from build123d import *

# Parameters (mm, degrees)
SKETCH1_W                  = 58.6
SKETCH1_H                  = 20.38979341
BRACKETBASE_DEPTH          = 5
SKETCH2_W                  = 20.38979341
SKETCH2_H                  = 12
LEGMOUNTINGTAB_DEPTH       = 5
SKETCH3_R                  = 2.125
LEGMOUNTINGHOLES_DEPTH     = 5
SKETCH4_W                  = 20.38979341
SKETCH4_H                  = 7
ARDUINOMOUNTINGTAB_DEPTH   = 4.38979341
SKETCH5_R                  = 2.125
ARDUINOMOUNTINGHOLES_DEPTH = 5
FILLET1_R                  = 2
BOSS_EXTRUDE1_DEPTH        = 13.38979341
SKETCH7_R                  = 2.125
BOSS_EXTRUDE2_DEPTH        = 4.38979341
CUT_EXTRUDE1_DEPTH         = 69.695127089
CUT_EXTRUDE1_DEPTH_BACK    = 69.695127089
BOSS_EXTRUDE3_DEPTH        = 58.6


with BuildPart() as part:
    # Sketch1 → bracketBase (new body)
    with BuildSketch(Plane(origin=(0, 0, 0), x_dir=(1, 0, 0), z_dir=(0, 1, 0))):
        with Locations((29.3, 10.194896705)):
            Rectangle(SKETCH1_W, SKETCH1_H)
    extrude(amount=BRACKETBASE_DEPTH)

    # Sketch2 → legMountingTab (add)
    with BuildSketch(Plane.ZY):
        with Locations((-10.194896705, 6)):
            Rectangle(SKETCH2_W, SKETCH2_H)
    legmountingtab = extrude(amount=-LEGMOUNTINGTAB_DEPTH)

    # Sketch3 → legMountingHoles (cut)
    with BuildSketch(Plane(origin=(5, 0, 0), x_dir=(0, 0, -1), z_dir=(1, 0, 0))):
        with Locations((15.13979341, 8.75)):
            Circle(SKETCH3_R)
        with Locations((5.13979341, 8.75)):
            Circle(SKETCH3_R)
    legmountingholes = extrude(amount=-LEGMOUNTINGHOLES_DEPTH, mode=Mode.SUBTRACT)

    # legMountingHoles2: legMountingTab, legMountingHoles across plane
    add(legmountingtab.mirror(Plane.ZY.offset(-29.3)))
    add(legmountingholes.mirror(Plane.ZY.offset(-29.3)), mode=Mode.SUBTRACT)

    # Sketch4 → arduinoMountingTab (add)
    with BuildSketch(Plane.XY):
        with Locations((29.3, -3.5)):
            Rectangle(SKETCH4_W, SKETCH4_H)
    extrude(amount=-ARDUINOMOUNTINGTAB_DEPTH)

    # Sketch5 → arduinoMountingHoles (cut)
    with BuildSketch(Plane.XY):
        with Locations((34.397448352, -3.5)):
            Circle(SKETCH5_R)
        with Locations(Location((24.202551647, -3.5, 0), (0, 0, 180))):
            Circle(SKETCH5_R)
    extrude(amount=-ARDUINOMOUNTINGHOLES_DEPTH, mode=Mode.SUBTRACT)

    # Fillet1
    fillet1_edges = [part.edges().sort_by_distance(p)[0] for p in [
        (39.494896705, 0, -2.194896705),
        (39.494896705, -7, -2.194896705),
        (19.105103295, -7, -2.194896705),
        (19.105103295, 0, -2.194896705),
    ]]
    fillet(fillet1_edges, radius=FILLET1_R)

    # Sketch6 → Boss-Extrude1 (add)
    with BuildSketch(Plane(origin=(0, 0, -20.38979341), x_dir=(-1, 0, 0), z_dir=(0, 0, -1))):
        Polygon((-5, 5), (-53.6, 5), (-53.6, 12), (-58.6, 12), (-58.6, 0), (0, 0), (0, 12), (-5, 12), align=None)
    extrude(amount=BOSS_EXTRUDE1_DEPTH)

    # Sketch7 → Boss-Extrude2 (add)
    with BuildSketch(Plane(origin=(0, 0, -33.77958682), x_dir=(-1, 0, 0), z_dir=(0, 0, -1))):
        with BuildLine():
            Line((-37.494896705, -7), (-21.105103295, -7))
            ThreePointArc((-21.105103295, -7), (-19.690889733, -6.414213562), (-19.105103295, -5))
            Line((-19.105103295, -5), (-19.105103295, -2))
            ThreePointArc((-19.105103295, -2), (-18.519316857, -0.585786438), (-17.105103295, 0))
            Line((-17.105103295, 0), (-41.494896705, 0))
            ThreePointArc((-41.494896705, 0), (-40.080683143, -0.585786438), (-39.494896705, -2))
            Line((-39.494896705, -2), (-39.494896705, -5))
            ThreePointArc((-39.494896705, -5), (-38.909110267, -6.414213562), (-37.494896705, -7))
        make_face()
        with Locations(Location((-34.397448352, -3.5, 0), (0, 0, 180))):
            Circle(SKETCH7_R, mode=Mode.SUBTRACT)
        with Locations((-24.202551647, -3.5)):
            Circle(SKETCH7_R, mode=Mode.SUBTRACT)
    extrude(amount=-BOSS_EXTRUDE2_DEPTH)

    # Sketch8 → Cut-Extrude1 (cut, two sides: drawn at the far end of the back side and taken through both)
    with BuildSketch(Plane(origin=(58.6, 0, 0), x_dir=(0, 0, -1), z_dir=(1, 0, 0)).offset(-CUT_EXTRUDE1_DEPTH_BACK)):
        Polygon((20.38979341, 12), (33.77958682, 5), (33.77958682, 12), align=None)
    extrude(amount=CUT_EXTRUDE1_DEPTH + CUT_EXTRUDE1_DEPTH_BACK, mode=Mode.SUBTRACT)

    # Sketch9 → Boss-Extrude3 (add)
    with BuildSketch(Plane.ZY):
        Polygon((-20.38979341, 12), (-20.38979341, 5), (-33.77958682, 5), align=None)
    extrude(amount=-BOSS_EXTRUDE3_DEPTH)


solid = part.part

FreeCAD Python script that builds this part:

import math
import FreeCAD as App
import Part
import Sketcher
Q = App.Units.Quantity


def edges_at(feature, points):
    """Names of the edges that pass closest to the given points."""
    edges = feature.Shape.Edges
    near = lambda p: min(range(len(edges)), key=lambda i: edges[i].distToShape(Part.Vertex(*p))[0])
    return sorted({f"Edge{near(p) + 1}" for p in points})


def add_polygon(sketch, points):
    """Adds a closed chain of lines whose ends are joined by coincident constraints."""
    first, n = sketch.GeometryCount, len(points)
    for a, b in zip(points, points[1:] + points[:1]):
        sketch.addGeometry(Part.LineSegment(App.Vector(*a, 0), App.Vector(*b, 0)), False)
    for i in range(n):
        sketch.addConstraint(Sketcher.Constraint("Coincident", first + i, 2, first + (i + 1) % n, 1))

doc = App.newDocument("Part")
body = doc.addObject("PartDesign::Body", "Body")

sketch1 = doc.addObject("Sketcher::SketchObject", "Sketch")
body.addObject(sketch1)
sketch1.AttachmentSupport = (doc.XZ_Plane, [""])
sketch1.MapMode = "FlatFace"
add_polygon(sketch1, [(0, -20), (0, 0), (59, 0), (59, -20)])
sketch1.addConstraint(Sketcher.Constraint("Vertical", 0))
sketch1.addConstraint(Sketcher.Constraint("Horizontal", 1))
sketch1.addConstraint(Sketcher.Constraint("Vertical", 2))
sketch1.addConstraint(Sketcher.Constraint("Horizontal", 3))
sketch1.addConstraint(Sketcher.Constraint("Coincident", 0, 2, -1, 1))
sketch1.addConstraint(Sketcher.Constraint("DistanceX", 1, 1, 1, 2, Q("58.6 mm")))
sketch1.addConstraint(Sketcher.Constraint("DistanceY", 0, 1, 0, 2, Q("20.389793 mm")))
pad1 = doc.addObject("PartDesign::Pad", "Pad")
body.addObject(pad1)
pad1.Profile = sketch1
pad1.Length = 5
pad1.Reversed = True

sketch2 = doc.addObject("Sketcher::SketchObject", "Sketch001")
body.addObject(sketch2)
sketch2.AttachmentSupport = (doc.YZ_Plane, [""])
sketch2.MapMode = "FlatFace"
add_polygon(sketch2, [(12, -20), (0, -20), (0, 0), (12, 0)])
sketch2.addConstraint(Sketcher.Constraint("Horizontal", 0))
sketch2.addConstraint(Sketcher.Constraint("Vertical", 1))
sketch2.addConstraint(Sketcher.Constraint("Horizontal", 2))
sketch2.addConstraint(Sketcher.Constraint("Vertical", 3))
sketch2.addConstraint(Sketcher.Constraint("Coincident", 1, 2, -1, 1))
sketch2.addConstraint(Sketcher.Constraint("DistanceX", 0, 2, 0, 1, Q("12 mm")))
sketch2.addConstraint(Sketcher.Constraint("DistanceY", 1, 1, 1, 2, Q("20.389793 mm")))
pad2 = doc.addObject("PartDesign::Pad", "Pad001")
body.addObject(pad2)
pad2.Profile = sketch2
pad2.Length = 5

sketch3 = doc.addObject("Sketcher::SketchObject", "Sketch002")
body.addObject(sketch3)
sketch3.AttachmentSupport = (doc.YZ_Plane, [""])
sketch3.MapMode = "FlatFace"
sketch3.AttachmentOffset = App.Placement(App.Vector(0, 0, 5), App.Rotation())
sketch3.addGeometry(Part.Circle(App.Vector(8.8, -15.1, 0), App.Vector(0, 0, 1), 2.1), False)
sketch3.addGeometry(Part.Circle(App.Vector(8.8, -5.1, 0), App.Vector(0, 0, 1), 2.1), False)
sketch3.addConstraint(Sketcher.Constraint("Equal", 0, 1))
sketch3.addConstraint(Sketcher.Constraint("Vertical", 0, 3, 1, 3))
sketch3.addConstraint(Sketcher.Constraint("Diameter", 0, Q("4.25 mm")))
sketch3.addConstraint(Sketcher.Constraint("DistanceY", 0, 3, 1, 3, Q("10 mm")))
sketch3.addConstraint(Sketcher.Constraint("DistanceX", -1, 1, 0, 3, Q("8.75 mm")))
sketch3.addConstraint(Sketcher.Constraint("DistanceY", 0, 3, -1, 1, Q("15.139793 mm")))
pocket1 = doc.addObject("PartDesign::Pocket", "Pocket")
body.addObject(pocket1)
pocket1.Profile = sketch3
pocket1.Length = 5
doc.recompute()

datumplane = doc.addObject("PartDesign::Plane", "DatumPlane")
body.addObject(datumplane)
datumplane.AttachmentSupport = (doc.YZ_Plane, [""])
datumplane.MapMode = "FlatFace"
datumplane.AttachmentOffset = App.Placement(App.Vector(0, 0, 29.3), App.Rotation())
mirrored = doc.addObject("PartDesign::Mirrored", "Mirrored")
body.addObject(mirrored)
mirrored.Originals = [pad2, pocket1]
mirrored.MirrorPlane = (datumplane, [""])
body.Tip = mirrored

sketch4 = doc.addObject("Sketcher::SketchObject", "Sketch003")
body.addObject(sketch4)
sketch4.AttachmentSupport = (doc.XY_Plane, [""])
sketch4.MapMode = "FlatFace"
add_polygon(sketch4, [(19, 0), (19, -7), (39, -7), (39, 0)])
sketch4.addConstraint(Sketcher.Constraint("Vertical", 0))
sketch4.addConstraint(Sketcher.Constraint("Horizontal", 1))
sketch4.addConstraint(Sketcher.Constraint("Vertical", 2))
sketch4.addConstraint(Sketcher.Constraint("Horizontal", 3))
sketch4.addConstraint(Sketcher.Constraint("PointOnObject", 2, 2, -1))
sketch4.addConstraint(Sketcher.Constraint("DistanceY", 0, 2, 0, 1, Q("7 mm")))
sketch4.addConstraint(Sketcher.Constraint("DistanceX", 1, 1, 1, 2, Q("20.389793 mm")))
sketch4.addConstraint(Sketcher.Constraint("DistanceX", -1, 1, 0, 2, Q("19.105103 mm")))
pad3 = doc.addObject("PartDesign::Pad", "Pad002")
body.addObject(pad3)
pad3.Profile = sketch4
pad3.Length = 4.389793
pad3.Reversed = True

sketch5 = doc.addObject("Sketcher::SketchObject", "Sketch004")
body.addObject(sketch5)
sketch5.AttachmentSupport = (doc.XY_Plane, [""])
sketch5.MapMode = "FlatFace"
sketch5.addGeometry(Part.Circle(App.Vector(34.4, -3.5, 0), App.Vector(0, 0, 1), 2.1), False)
sketch5.addGeometry(Part.Circle(App.Vector(24.2, -3.5, 0), App.Vector(0, 0, 1), 2.1), False)
sketch5.addConstraint(Sketcher.Constraint("Equal", 0, 1))
sketch5.addConstraint(Sketcher.Constraint("Horizontal", 0, 3, 1, 3))
sketch5.addConstraint(Sketcher.Constraint("Diameter", 0, Q("4.25 mm")))
sketch5.addConstraint(Sketcher.Constraint("DistanceY", 0, 3, -1, 1, Q("3.5 mm")))
sketch5.addConstraint(Sketcher.Constraint("DistanceX", -1, 1, 0, 3, Q("34.397448 mm")))
sketch5.addConstraint(Sketcher.Constraint("DistanceX", -1, 1, 1, 3, Q("24.202552 mm")))
pocket2 = doc.addObject("PartDesign::Pocket", "Pocket001")
body.addObject(pocket2)
pocket2.Profile = sketch5
pocket2.Length = 5
doc.recompute()

fillet = doc.addObject("PartDesign::Fillet", "Fillet")
body.addObject(fillet)
fillet.Base = (pocket2, edges_at(pocket2, [
    (39.495, 0, -2.195),
    (39.495, -7, -2.195),
    (19.105, -7, -2.195),
    (19.105, 0, -2.195),
]))
fillet.Radius = 2

sketch6 = doc.addObject("Sketcher::SketchObject", "Sketch005")
body.addObject(sketch6)
sketch6.AttachmentSupport = (doc.XY_Plane, [""])
sketch6.MapMode = "FlatFace"
sketch6.AttachmentOffset = App.Placement(App.Vector(0, 0, -20.389793), App.Rotation())
add_polygon(sketch6, [(5, 5), (54, 5), (54, 12), (59, 12), (59, 0), (0, 0), (0, 12), (5, 12)])
sketch6.addConstraint(Sketcher.Constraint("Horizontal", 0))
sketch6.addConstraint(Sketcher.Constraint("Vertical", 1))
sketch6.addConstraint(Sketcher.Constraint("Horizontal", 2))
sketch6.addConstraint(Sketcher.Constraint("Vertical", 3))
sketch6.addConstraint(Sketcher.Constraint("Horizontal", 4))
sketch6.addConstraint(Sketcher.Constraint("Vertical", 5))
sketch6.addConstraint(Sketcher.Constraint("Horizontal", 6))
sketch6.addConstraint(Sketcher.Constraint("Vertical", 7))
sketch6.addConstraint(Sketcher.Constraint("Coincident", 4, 2, -1, 1))
sketch6.addConstraint(Sketcher.Constraint("Horizontal", 2, 2, 5, 2))
sketch6.addConstraint(Sketcher.Constraint("Equal", 2, 6))
sketch6.addConstraint(Sketcher.Constraint("DistanceX", 2, 1, 2, 2, Q("5 mm")))
sketch6.addConstraint(Sketcher.Constraint("DistanceY", 1, 1, 1, 2, Q("7 mm")))
sketch6.addConstraint(Sketcher.Constraint("DistanceY", 3, 2, 3, 1, Q("12 mm")))
sketch6.addConstraint(Sketcher.Constraint("DistanceX", 0, 1, 0, 2, Q("48.6 mm")))
pad4 = doc.addObject("PartDesign::Pad", "Pad003")
body.addObject(pad4)
pad4.Profile = sketch6
pad4.Length = 13.389793
pad4.Reversed = True

sketch7 = doc.addObject("Sketcher::SketchObject", "Sketch006")
body.addObject(sketch7)
sketch7.AttachmentSupport = (doc.XY_Plane, [""])
sketch7.MapMode = "FlatFace"
sketch7.AttachmentOffset = App.Placement(App.Vector(0, 0, -33.779587), App.Rotation())
sketch7.addGeometry(Part.LineSegment(App.Vector(37.5, -7, 0), App.Vector(21.1, -7, 0)), False)
sketch7.addGeometry(Part.ArcOfCircle(Part.Circle(App.Vector(21.1, -5, 0), App.Vector(0, 0, 1), 2), math.radians(-180), math.radians(-90)), False)
sketch7.addGeometry(Part.LineSegment(App.Vector(19.1, -5, 0), App.Vector(19.1, -2, 0)), False)
sketch7.addGeometry(Part.ArcOfCircle(Part.Circle(App.Vector(17.1, -2, 0), App.Vector(0, 0, 1), 2), math.radians(0), math.radians(90)), False)
sketch7.addGeometry(Part.LineSegment(App.Vector(17.1, 0, 0), App.Vector(41.5, 0, 0)), False)
sketch7.addGeometry(Part.ArcOfCircle(Part.Circle(App.Vector(41.5, -2, 0), App.Vector(0, 0, 1), 2), math.radians(90), math.radians(180)), False)
sketch7.addGeometry(Part.LineSegment(App.Vector(39.5, -2, 0), App.Vector(39.5, -5, 0)), False)
sketch7.addGeometry(Part.ArcOfCircle(Part.Circle(App.Vector(37.5, -5, 0), App.Vector(0, 0, 1), 2), math.radians(-90), math.radians(0)), False)
sketch7.addGeometry(Part.Circle(App.Vector(34.4, -3.5, 0), App.Vector(0, 0, 1), 2.1), False)
sketch7.addGeometry(Part.Circle(App.Vector(24.2, -3.5, 0), App.Vector(0, 0, 1), 2.1), False)
sketch7.addConstraint(Sketcher.Constraint("Tangent", 0, 2, 1, 2))
sketch7.addConstraint(Sketcher.Constraint("Tangent", 1, 1, 2, 1))
sketch7.addConstraint(Sketcher.Constraint("Tangent", 2, 2, 3, 1))
sketch7.addConstraint(Sketcher.Constraint("Tangent", 3, 2, 4, 1))
sketch7.addConstraint(Sketcher.Constraint("Tangent", 4, 2, 5, 1))
sketch7.addConstraint(Sketcher.Constraint("Tangent", 5, 2, 6, 1))
sketch7.addConstraint(Sketcher.Constraint("Tangent", 6, 2, 7, 2))
sketch7.addConstraint(Sketcher.Constraint("Tangent", 7, 1, 0, 1))
sketch7.addConstraint(Sketcher.Constraint("Horizontal", 0))
sketch7.addConstraint(Sketcher.Constraint("Vertical", 2))
sketch7.addConstraint(Sketcher.Constraint("Horizontal", 4))
sketch7.addConstraint(Sketcher.Constraint("Vertical", 6))
sketch7.addConstraint(Sketcher.Constraint("Equal", 1, 3))
sketch7.addConstraint(Sketcher.Constraint("Equal", 3, 5))
sketch7.addConstraint(Sketcher.Constraint("Equal", 5, 7))
sketch7.addConstraint(Sketcher.Constraint("Equal", 8, 9))
sketch7.addConstraint(Sketcher.Constraint("PointOnObject", 3, 2, -1))
sketch7.addConstraint(Sketcher.Constraint("Horizontal", 8, 3, 9, 3))
sketch7.addConstraint(Sketcher.Constraint("Radius", 1, Q("2 mm")))
sketch7.addConstraint(Sketcher.Constraint("Diameter", 8, Q("4.25 mm")))
sketch7.addConstraint(Sketcher.Constraint("DistanceY", 2, 1, 2, 2, Q("3 mm")))
sketch7.addConstraint(Sketcher.Constraint("DistanceY", 8, 3, -1, 1, Q("3.5 mm")))
sketch7.addConstraint(Sketcher.Constraint("DistanceX", 0, 2, 0, 1, Q("16.389793 mm")))
sketch7.addConstraint(Sketcher.Constraint("DistanceX", -1, 1, 8, 3, Q("34.397448 mm")))
sketch7.addConstraint(Sketcher.Constraint("DistanceX", -1, 1, 9, 3, Q("24.202552 mm")))
sketch7.addConstraint(Sketcher.Constraint("DistanceX", 8, 3, 7, 3, Q("3.097448 mm")))
pad5 = doc.addObject("PartDesign::Pad", "Pad004")
body.addObject(pad5)
pad5.Profile = sketch7
pad5.Length = 4.389793

sketch8 = doc.addObject("Sketcher::SketchObject", "Sketch007")
body.addObject(sketch8)
sketch8.AttachmentSupport = (doc.YZ_Plane, [""])
sketch8.MapMode = "FlatFace"
sketch8.AttachmentOffset = App.Placement(App.Vector(0, 0, 58.6), App.Rotation())
add_polygon(sketch8, [(12, -20), (5, -34), (12, -34)])
sketch8.addConstraint(Sketcher.Constraint("Horizontal", 1))
sketch8.addConstraint(Sketcher.Constraint("Vertical", 2))
sketch8.addConstraint(Sketcher.Constraint("DistanceX", 1, 1, 1, 2, Q("7 mm")))
sketch8.addConstraint(Sketcher.Constraint("DistanceX", -1, 1, 0, 2, Q("5 mm")))
sketch8.addConstraint(Sketcher.Constraint("DistanceY", 2, 1, 2, 2, Q("13.389793 mm")))
sketch8.addConstraint(Sketcher.Constraint("DistanceY", 0, 2, -1, 1, Q("33.779587 mm")))
pocket3 = doc.addObject("PartDesign::Pocket", "Pocket002")
body.addObject(pocket3)
pocket3.Profile = sketch8
pocket3.Type = "ThroughAll"
pocket3.Midplane = True

sketch9 = doc.addObject("Sketcher::SketchObject", "Sketch008")
body.addObject(sketch9)
sketch9.AttachmentSupport = (doc.YZ_Plane, [""])
sketch9.MapMode = "FlatFace"
add_polygon(sketch9, [(5, -20), (12, -20), (5, -34)])
sketch9.addConstraint(Sketcher.Constraint("Horizontal", 0))
sketch9.addConstraint(Sketcher.Constraint("Vertical", 2))
sketch9.addConstraint(Sketcher.Constraint("DistanceX", 0, 1, 0, 2, Q("7 mm")))
sketch9.addConstraint(Sketcher.Constraint("DistanceX", -1, 1, 0, 2, Q("12 mm")))
sketch9.addConstraint(Sketcher.Constraint("DistanceY", 2, 1, 2, 2, Q("13.389793 mm")))
sketch9.addConstraint(Sketcher.Constraint("DistanceY", 0, 2, -1, 1, Q("20.389793 mm")))
pad6 = doc.addObject("PartDesign::Pad", "Pad005")
body.addObject(pad6)
pad6.Profile = sketch9
pad6.Length = 58.6

doc.recompute()
